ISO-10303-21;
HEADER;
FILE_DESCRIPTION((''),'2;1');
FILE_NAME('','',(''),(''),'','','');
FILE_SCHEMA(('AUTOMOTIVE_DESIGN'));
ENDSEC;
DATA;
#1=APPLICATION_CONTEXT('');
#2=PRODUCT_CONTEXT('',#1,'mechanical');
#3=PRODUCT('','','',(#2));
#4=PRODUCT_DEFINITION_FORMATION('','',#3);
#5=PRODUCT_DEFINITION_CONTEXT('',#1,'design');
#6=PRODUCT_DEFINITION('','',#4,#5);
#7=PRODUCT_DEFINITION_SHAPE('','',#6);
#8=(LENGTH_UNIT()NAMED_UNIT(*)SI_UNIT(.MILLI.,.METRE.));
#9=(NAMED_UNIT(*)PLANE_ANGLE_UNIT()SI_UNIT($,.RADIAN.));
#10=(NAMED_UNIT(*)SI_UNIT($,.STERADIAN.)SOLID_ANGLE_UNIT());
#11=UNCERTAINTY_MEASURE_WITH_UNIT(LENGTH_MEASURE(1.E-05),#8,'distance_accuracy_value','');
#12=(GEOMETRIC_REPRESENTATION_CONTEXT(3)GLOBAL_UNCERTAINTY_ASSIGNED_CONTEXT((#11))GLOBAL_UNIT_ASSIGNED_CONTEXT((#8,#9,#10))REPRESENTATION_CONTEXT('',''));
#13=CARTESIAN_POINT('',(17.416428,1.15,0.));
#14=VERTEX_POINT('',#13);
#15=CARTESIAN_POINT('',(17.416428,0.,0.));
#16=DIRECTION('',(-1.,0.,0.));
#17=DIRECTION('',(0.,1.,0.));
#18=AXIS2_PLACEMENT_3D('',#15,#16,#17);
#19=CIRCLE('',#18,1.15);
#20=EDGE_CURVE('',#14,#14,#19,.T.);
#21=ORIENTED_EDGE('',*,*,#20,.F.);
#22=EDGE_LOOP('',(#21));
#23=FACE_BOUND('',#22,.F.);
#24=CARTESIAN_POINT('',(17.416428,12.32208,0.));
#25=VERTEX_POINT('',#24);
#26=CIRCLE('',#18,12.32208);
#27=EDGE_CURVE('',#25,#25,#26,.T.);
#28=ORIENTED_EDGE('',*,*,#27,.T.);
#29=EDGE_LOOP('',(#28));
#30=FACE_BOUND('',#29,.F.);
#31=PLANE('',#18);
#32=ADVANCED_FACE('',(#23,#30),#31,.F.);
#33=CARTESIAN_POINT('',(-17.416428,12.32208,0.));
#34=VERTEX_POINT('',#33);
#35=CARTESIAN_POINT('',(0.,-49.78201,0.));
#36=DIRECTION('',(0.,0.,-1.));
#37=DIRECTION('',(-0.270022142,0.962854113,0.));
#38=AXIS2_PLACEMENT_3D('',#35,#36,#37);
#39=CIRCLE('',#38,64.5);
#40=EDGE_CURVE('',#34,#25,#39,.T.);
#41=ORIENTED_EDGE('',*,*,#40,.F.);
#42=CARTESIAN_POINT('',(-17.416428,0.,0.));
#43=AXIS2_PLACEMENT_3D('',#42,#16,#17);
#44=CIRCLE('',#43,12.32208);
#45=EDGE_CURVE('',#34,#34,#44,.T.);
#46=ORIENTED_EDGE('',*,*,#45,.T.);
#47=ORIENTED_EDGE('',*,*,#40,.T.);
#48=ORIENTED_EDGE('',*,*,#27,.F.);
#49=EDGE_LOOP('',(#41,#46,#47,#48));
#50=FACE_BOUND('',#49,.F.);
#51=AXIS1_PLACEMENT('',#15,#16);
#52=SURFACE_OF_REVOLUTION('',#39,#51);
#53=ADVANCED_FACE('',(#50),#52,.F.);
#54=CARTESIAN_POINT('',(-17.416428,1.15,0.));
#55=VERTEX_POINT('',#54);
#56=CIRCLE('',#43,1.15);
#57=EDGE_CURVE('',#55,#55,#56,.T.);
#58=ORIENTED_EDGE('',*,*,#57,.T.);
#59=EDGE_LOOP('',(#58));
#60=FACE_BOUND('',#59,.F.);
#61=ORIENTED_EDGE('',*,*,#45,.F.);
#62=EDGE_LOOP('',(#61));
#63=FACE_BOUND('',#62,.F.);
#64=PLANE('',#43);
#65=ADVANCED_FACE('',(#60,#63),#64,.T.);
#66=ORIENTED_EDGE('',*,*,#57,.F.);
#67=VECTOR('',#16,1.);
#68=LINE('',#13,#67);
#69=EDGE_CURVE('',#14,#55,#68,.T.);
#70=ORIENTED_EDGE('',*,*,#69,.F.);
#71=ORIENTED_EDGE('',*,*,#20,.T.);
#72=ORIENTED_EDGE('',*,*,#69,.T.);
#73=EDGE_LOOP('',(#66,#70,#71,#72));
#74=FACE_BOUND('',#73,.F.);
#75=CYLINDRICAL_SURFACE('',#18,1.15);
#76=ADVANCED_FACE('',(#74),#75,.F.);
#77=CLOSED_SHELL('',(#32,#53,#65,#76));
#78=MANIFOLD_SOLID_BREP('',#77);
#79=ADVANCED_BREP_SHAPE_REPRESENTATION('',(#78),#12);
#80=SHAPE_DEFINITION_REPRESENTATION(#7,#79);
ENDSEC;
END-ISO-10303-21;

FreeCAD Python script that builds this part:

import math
import FreeCAD as App
import Part
import Sketcher

V = App.Vector

doc = App.newDocument("Part")
body = doc.addObject("PartDesign::Body", "Body")

sketch1 = doc.addObject("Sketcher::SketchObject", "Sketch")
body.addObject(sketch1)
sketch1.AttachmentSupport = (doc.XY_Plane, [""])
sketch1.MapMode = "FlatFace"
sketch1.addGeometry(Part.LineSegment(V(-17, 12, 0), V(-17, 1, 0)), False)
sketch1.addGeometry(Part.LineSegment(V(-17, 1, 0), V(17, 1, 0)), False)
sketch1.addGeometry(Part.LineSegment(V(17, 1, 0), V(17, 12, 0)), False)
sketch1.addGeometry(Part.ArcOfCircle(Part.Circle(V(0, -50, 0), V(0, 0, 1), 64), math.radians(74), math.radians(106)), False)
sketch1.addConstraint(Sketcher.Constraint("Coincident", 0, 2, 1, 1))
sketch1.addConstraint(Sketcher.Constraint("Coincident", 1, 2, 2, 1))
sketch1.addConstraint(Sketcher.Constraint("Coincident", 2, 2, 3, 1))
sketch1.addConstraint(Sketcher.Constraint("Coincident", 3, 2, 0, 1))
sketch1.addConstraint(Sketcher.Constraint("Vertical", 0))
sketch1.addConstraint(Sketcher.Constraint("Horizontal", 1))
sketch1.addConstraint(Sketcher.Constraint("Vertical", 2))
sketch1.addConstraint(Sketcher.Constraint("Symmetric", 2, 2, 3, 2, -2))
sketch1.addConstraint(Sketcher.Constraint("Radius", 3, 64.5))
sketch1.addConstraint(Sketcher.Constraint("DistanceY", -1, 1, 0, 2, 1.15))
sketch1.addConstraint(Sketcher.Constraint("DistanceY", 0, 2, 0, 1, 11.17208))
sketch1.addConstraint(Sketcher.Constraint("DistanceX", 1, 1, 1, 2, 34.832856))
revolution = doc.addObject("PartDesign::Revolution", "Revolution")
body.addObject(revolution)
revolution.Profile = sketch1
revolution.ReferenceAxis = (sketch1, ["H_Axis"])
revolution.Angle = 360

doc.recompute()
